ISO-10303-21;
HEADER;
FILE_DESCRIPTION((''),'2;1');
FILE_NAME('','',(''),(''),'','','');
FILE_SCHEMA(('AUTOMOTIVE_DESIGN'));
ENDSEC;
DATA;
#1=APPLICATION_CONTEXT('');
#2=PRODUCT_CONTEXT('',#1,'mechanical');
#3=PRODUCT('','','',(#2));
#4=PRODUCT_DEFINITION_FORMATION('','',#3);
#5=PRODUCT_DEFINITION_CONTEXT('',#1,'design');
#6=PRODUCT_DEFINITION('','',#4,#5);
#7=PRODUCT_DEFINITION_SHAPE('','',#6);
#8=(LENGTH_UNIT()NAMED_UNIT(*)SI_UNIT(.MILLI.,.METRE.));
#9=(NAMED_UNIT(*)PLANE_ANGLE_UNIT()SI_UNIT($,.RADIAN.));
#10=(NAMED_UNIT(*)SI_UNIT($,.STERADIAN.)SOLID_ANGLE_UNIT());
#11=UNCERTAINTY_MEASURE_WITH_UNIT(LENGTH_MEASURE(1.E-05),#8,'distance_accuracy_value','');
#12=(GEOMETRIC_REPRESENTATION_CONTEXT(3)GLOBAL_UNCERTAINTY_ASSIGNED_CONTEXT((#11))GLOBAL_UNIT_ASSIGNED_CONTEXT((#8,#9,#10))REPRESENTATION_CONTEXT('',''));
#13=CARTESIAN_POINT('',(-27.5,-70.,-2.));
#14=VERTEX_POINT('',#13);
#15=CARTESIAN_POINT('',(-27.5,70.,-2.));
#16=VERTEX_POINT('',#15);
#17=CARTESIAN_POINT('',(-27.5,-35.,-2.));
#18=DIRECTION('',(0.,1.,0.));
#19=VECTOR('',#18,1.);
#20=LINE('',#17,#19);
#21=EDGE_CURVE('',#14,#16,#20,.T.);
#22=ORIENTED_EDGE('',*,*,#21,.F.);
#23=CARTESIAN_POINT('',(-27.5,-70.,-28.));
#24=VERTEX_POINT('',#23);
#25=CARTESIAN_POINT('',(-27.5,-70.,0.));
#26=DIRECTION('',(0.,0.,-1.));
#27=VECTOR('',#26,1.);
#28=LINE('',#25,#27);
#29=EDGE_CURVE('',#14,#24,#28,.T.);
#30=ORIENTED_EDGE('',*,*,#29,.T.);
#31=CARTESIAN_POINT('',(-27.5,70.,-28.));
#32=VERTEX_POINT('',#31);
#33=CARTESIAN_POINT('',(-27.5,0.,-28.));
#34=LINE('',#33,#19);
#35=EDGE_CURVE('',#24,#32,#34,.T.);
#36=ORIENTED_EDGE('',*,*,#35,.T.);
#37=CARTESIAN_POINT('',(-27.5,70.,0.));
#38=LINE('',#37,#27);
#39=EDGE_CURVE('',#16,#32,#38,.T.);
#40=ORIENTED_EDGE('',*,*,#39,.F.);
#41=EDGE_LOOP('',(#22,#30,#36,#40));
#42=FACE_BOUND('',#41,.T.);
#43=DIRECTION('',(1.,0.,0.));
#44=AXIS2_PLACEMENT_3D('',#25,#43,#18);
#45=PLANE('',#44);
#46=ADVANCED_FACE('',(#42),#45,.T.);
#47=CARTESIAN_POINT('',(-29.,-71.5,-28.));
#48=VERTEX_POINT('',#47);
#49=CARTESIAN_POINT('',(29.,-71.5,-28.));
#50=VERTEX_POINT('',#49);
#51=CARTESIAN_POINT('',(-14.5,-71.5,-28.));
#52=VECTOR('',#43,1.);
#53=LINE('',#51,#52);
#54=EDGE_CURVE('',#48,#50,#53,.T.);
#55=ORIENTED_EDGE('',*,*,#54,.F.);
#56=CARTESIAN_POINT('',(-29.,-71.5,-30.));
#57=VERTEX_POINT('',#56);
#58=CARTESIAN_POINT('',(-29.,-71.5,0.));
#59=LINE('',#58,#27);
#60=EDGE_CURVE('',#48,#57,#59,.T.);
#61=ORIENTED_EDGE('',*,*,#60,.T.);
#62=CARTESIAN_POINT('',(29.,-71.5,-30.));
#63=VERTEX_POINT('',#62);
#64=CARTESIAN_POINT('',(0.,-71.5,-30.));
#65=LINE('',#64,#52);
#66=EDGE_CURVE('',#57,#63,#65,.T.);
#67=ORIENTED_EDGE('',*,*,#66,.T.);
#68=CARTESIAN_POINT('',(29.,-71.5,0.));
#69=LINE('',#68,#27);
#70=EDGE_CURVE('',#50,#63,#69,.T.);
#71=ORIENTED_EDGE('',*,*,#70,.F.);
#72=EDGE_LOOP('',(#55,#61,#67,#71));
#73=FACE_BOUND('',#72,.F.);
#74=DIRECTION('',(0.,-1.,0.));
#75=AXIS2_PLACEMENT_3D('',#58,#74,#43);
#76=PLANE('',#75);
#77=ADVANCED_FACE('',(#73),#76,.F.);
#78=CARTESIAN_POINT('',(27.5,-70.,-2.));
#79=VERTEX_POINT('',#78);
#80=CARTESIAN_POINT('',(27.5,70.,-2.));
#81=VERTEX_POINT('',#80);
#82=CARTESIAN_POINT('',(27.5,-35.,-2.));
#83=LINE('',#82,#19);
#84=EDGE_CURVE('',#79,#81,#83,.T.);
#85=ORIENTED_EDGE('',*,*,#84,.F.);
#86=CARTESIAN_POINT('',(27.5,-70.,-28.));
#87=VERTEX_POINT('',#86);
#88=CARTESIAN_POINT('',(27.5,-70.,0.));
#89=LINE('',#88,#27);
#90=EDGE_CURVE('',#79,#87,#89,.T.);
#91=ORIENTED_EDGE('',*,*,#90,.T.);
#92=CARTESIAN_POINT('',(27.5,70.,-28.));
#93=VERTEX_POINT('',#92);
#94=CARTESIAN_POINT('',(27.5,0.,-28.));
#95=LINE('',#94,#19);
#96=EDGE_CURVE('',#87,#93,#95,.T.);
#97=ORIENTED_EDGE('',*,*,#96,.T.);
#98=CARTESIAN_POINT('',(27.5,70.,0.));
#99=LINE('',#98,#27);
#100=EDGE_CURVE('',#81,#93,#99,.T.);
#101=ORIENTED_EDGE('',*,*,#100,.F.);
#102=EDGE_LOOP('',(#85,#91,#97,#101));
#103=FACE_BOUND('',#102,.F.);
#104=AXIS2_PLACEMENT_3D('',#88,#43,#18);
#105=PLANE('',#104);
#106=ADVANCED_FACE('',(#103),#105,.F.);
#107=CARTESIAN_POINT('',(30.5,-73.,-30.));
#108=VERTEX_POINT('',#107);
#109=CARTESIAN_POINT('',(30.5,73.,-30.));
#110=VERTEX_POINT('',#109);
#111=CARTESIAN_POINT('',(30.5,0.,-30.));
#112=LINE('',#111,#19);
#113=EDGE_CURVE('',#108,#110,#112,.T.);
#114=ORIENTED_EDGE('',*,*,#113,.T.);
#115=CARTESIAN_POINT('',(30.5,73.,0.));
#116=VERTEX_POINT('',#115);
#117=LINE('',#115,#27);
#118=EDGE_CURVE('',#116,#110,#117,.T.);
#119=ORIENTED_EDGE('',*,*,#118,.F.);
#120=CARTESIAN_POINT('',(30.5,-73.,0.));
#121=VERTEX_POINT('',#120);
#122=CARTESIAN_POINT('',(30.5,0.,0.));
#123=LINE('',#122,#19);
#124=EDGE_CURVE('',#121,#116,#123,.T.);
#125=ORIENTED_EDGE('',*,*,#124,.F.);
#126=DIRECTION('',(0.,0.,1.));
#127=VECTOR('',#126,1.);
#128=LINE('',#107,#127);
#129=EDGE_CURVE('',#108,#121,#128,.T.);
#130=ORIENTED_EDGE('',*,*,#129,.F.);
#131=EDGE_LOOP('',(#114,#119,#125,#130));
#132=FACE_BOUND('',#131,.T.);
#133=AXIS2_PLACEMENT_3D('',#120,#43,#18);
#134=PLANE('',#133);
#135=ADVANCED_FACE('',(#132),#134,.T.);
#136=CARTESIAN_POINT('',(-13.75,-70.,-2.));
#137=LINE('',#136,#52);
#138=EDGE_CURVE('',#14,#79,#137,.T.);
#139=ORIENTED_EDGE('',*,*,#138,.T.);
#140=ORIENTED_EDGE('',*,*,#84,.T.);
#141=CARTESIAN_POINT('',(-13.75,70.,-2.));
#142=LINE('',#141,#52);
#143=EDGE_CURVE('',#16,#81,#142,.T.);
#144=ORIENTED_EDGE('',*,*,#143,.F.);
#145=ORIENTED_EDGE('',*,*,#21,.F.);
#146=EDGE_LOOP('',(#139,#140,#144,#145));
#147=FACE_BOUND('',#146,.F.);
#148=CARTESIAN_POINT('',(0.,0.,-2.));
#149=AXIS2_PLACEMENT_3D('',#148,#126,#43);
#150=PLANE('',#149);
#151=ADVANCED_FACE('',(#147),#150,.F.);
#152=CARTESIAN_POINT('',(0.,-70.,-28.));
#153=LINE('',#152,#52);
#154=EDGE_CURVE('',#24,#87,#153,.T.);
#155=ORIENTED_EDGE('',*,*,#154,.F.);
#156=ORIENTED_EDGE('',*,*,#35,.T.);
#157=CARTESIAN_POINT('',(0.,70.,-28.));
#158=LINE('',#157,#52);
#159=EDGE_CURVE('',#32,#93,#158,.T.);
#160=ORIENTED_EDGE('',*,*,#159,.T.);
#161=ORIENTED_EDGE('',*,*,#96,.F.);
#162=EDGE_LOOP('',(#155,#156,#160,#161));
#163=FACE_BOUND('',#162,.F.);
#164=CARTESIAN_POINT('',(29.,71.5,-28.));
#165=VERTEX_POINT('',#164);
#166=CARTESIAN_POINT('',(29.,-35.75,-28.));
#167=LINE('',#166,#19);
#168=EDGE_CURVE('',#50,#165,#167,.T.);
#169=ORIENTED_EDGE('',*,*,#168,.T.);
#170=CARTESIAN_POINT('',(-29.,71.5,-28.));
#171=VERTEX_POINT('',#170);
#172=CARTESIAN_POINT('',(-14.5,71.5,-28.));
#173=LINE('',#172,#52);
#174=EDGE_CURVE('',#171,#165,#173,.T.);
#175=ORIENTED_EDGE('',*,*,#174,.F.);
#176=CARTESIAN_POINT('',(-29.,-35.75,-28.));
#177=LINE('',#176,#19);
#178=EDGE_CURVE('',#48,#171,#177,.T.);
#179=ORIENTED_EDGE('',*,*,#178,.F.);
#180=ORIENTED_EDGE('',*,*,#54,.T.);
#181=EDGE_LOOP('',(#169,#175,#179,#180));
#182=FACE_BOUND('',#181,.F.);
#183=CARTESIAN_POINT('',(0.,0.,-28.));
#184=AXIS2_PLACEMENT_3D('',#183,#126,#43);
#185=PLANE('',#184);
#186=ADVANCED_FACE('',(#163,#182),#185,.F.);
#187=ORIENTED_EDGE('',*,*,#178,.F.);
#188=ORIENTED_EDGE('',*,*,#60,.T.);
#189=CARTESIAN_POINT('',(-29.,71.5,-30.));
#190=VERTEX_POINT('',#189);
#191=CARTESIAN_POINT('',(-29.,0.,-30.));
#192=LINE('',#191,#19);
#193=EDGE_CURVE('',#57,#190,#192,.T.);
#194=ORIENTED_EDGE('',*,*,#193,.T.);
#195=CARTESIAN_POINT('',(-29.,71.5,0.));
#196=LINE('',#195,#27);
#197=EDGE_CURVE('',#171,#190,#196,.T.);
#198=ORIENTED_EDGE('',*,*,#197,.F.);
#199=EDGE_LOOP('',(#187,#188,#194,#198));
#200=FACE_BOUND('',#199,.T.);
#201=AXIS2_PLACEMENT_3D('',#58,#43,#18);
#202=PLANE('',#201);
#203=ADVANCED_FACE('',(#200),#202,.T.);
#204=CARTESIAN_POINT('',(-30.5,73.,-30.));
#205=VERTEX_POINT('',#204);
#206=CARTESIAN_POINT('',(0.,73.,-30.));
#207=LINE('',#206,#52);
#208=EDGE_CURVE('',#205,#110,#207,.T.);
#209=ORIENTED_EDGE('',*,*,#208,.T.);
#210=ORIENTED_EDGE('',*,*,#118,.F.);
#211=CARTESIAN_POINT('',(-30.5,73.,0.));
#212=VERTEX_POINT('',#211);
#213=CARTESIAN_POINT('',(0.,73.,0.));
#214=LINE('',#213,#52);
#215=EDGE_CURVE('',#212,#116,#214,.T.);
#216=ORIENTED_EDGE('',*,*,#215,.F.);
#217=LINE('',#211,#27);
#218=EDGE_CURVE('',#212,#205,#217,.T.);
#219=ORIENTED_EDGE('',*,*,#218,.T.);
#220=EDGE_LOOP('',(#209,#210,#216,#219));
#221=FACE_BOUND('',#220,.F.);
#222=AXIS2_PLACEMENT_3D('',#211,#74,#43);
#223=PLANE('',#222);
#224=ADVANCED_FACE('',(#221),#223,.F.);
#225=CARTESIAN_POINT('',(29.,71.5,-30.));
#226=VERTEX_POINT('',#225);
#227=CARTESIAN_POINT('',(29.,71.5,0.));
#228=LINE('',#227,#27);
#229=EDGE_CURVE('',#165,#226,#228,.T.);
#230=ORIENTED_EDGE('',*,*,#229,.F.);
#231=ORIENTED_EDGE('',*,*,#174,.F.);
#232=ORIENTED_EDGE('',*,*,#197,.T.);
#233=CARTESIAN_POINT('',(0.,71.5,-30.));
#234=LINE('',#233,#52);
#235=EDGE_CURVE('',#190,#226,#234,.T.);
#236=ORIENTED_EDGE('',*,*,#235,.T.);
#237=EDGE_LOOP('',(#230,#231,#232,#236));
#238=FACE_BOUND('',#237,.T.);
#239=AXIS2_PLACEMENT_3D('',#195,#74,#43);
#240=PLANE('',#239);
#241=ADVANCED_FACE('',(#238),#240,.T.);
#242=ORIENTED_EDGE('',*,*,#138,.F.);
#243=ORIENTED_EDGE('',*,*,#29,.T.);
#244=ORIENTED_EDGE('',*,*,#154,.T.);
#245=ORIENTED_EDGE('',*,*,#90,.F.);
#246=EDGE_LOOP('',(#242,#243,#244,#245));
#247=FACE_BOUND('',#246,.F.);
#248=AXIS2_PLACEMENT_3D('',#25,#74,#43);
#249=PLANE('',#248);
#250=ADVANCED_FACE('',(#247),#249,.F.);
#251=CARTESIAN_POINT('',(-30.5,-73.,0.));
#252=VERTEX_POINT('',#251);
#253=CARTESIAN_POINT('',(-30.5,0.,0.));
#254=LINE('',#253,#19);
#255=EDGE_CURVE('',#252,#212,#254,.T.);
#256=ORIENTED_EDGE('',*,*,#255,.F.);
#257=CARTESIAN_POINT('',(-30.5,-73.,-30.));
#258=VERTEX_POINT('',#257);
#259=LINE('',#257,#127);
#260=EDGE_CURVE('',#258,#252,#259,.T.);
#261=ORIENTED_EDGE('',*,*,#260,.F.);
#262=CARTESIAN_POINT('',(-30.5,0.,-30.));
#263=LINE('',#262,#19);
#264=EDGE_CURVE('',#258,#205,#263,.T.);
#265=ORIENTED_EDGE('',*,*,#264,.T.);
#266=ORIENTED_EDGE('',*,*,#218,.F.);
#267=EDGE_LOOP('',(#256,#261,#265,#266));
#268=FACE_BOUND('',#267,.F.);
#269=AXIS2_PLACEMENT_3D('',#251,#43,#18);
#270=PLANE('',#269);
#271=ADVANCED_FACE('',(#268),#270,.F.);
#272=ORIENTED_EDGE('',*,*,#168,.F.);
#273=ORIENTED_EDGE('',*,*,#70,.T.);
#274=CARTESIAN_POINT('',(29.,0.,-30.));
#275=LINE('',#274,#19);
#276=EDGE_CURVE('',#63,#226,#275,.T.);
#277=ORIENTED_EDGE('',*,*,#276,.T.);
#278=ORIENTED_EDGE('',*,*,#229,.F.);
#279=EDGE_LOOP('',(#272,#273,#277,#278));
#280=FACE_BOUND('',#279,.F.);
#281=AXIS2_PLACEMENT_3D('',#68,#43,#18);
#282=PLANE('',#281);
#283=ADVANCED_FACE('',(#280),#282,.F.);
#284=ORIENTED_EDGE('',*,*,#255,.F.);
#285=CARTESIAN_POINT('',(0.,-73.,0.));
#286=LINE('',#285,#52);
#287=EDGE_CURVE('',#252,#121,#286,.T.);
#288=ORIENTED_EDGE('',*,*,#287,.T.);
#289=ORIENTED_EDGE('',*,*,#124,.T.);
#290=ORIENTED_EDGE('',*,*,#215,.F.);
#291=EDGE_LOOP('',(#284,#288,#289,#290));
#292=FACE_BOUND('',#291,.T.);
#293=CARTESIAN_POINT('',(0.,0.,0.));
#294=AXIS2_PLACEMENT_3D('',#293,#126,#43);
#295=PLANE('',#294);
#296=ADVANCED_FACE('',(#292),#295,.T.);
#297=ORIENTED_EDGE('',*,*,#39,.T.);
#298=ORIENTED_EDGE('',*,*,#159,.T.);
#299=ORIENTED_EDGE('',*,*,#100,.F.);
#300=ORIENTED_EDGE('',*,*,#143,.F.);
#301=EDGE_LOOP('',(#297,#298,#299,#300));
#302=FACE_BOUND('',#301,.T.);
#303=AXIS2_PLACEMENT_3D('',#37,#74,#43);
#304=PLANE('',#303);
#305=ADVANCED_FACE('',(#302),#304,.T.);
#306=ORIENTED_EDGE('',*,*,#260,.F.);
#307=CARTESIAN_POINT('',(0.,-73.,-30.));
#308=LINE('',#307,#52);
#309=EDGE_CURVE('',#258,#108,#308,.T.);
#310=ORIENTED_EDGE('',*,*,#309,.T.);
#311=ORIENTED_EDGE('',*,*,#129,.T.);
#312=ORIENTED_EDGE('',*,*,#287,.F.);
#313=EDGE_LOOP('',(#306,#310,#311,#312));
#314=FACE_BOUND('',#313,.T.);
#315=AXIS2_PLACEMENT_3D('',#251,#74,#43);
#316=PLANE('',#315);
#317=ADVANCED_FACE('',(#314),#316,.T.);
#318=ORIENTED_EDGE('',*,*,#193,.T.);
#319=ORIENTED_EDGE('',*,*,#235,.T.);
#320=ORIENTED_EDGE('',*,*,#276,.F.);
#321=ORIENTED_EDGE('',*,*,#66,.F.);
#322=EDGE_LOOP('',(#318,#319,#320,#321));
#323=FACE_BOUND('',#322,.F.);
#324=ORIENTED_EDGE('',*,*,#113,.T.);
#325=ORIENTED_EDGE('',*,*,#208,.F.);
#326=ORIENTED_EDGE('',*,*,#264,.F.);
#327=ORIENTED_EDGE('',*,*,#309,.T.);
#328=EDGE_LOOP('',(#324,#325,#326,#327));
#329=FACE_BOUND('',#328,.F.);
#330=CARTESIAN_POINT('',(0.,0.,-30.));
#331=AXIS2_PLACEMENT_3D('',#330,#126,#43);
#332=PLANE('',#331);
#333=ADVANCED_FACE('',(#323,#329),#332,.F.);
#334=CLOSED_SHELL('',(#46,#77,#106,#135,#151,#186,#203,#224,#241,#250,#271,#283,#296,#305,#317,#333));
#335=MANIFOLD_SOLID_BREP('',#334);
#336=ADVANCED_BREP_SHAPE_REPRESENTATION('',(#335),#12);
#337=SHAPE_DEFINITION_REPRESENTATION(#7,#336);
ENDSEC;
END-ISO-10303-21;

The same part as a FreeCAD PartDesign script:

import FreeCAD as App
import Part
import Sketcher
Q = App.Units.Quantity


def add_polygon(sketch, points):
    """Adds a closed chain of lines whose ends are joined by coincident constraints."""
    first, n = sketch.GeometryCount, len(points)
    for a, b in zip(points, points[1:] + points[:1]):
        sketch.addGeometry(Part.LineSegment(App.Vector(*a, 0), App.Vector(*b, 0)), False)
    for i in range(n):
        sketch.addConstraint(Sketcher.Constraint("Coincident", first + i, 2, first + (i + 1) % n, 1))

doc = App.newDocument("Part")
params = doc.addObject("Spreadsheet::Sheet", "Params")
for row, (alias, value) in enumerate([
    ("sketch1_width", "61 mm"),
    ("sketch1_height", "146 mm"),
    ("pad1_length", "2 mm"),
    ("sketch2_width", "61 mm"),
    ("sketch2_width2", "55 mm"),
    ("sketch2_height", "146 mm"),
    ("sketch2_height2", "140 mm"),
    ("pad2_length", "28 mm"),
    ("sketch3_width", "61 mm"),
    ("sketch3_width2", "58 mm"),
    ("sketch3_height", "146 mm"),
    ("sketch3_height2", "143 mm"),
    ("pad3_length", "30 mm"),
], start=1):
    params.set(f"A{row}", alias)
    params.set(f"B{row}", "=" + value)
    params.setAlias(f"B{row}", alias)

body = doc.addObject("PartDesign::Body", "Body")

# Sketch on XY plane
sketch1 = body.newObject("Sketcher::SketchObject", "Sketch")
sketch1.AttachmentSupport = (doc.getObject("XY_Plane"), [""])
sketch1.MapMode = "FlatFace"
add_polygon(sketch1, [(-30, 73), (-30, -73), (30, -73), (30, 73)])  # lines 0-3
sketch1.addConstraint(Sketcher.Constraint("Vertical", 0))
sketch1.addConstraint(Sketcher.Constraint("Horizontal", 1))
sketch1.addConstraint(Sketcher.Constraint("Vertical", 2))
sketch1.addConstraint(Sketcher.Constraint("Horizontal", 3))
sketch1.addConstraint(Sketcher.Constraint("Symmetric", 0, 2, 2, 2, -1, 1))
sketch1.addConstraint(Sketcher.Constraint("DistanceX", 1, 1, 1, 2, Q("61 mm")))
sketch1.addConstraint(Sketcher.Constraint("DistanceY", 0, 2, 0, 1, Q("146 mm")))
sketch1.setExpression("Constraints[9]", "Params.sketch1_width")
sketch1.setExpression("Constraints[10]", "Params.sketch1_height")
pad1 = body.newObject("PartDesign::Pad", "Pad")
pad1.Profile = sketch1
pad1.setExpression("Length", "Params.pad1_length")
pad1.Reversed = True

# Sketch on XY plane
sketch2 = body.newObject("Sketcher::SketchObject", "Sketch001")
sketch2.AttachmentSupport = (doc.getObject("XY_Plane"), [""])
sketch2.MapMode = "FlatFace"
add_polygon(sketch2, [(-30, 73), (-30, -73), (30, -73), (30, 73)])  # lines 0-3
add_polygon(sketch2, [(28, -70), (-28, -70), (-28, 70), (28, 70)])  # lines 4-7
sketch2.addConstraint(Sketcher.Constraint("Vertical", 0))
sketch2.addConstraint(Sketcher.Constraint("Horizontal", 1))
sketch2.addConstraint(Sketcher.Constraint("Vertical", 2))
sketch2.addConstraint(Sketcher.Constraint("Horizontal", 3))
sketch2.addConstraint(Sketcher.Constraint("Horizontal", 4))
sketch2.addConstraint(Sketcher.Constraint("Vertical", 5))
sketch2.addConstraint(Sketcher.Constraint("Horizontal", 6))
sketch2.addConstraint(Sketcher.Constraint("Vertical", 7))
sketch2.addConstraint(Sketcher.Constraint("Symmetric", 0, 2, 2, 2, -1, 1))
sketch2.addConstraint(Sketcher.Constraint("Symmetric", 4, 2, 6, 2, -1, 1))
sketch2.addConstraint(Sketcher.Constraint("DistanceX", 1, 1, 1, 2, Q("61 mm")))
sketch2.addConstraint(Sketcher.Constraint("DistanceX", 4, 2, 4, 1, Q("55 mm")))
sketch2.addConstraint(Sketcher.Constraint("DistanceY", 0, 2, 0, 1, Q("146 mm")))
sketch2.addConstraint(Sketcher.Constraint("DistanceY", 5, 1, 5, 2, Q("140 mm")))
sketch2.setExpression("Constraints[18]", "Params.sketch2_width")
sketch2.setExpression("Constraints[19]", "Params.sketch2_width2")
sketch2.setExpression("Constraints[20]", "Params.sketch2_height")
sketch2.setExpression("Constraints[21]", "Params.sketch2_height2")
pad2 = body.newObject("PartDesign::Pad", "Pad001")
pad2.Profile = sketch2
pad2.setExpression("Length", "Params.pad2_length")
pad2.Reversed = True

# Sketch on XY plane
sketch3 = body.newObject("Sketcher::SketchObject", "Sketch002")
sketch3.AttachmentSupport = (doc.getObject("XY_Plane"), [""])
sketch3.MapMode = "FlatFace"
add_polygon(sketch3, [(-30, 73), (-30, -73), (30, -73), (30, 73)])  # lines 0-3
add_polygon(sketch3, [(29, -72), (-29, -72), (-29, 72), (29, 72)])  # lines 4-7
sketch3.addConstraint(Sketcher.Constraint("Vertical", 0))
sketch3.addConstraint(Sketcher.Constraint("Horizontal", 1))
sketch3.addConstraint(Sketcher.Constraint("Vertical", 2))
sketch3.addConstraint(Sketcher.Constraint("Horizontal", 3))
sketch3.addConstraint(Sketcher.Constraint("Horizontal", 4))
sketch3.addConstraint(Sketcher.Constraint("Vertical", 5))
sketch3.addConstraint(Sketcher.Constraint("Horizontal", 6))
sketch3.addConstraint(Sketcher.Constraint("Vertical", 7))
sketch3.addConstraint(Sketcher.Constraint("Symmetric", 0, 2, 2, 2, -1, 1))
sketch3.addConstraint(Sketcher.Constraint("Symmetric", 4, 2, 6, 2, -1, 1))
sketch3.addConstraint(Sketcher.Constraint("DistanceX", 1, 1, 1, 2, Q("61 mm")))
sketch3.addConstraint(Sketcher.Constraint("DistanceX", 4, 2, 4, 1, Q("58 mm")))
sketch3.addConstraint(Sketcher.Constraint("DistanceY", 0, 2, 0, 1, Q("146 mm")))
sketch3.addConstraint(Sketcher.Constraint("DistanceY", 5, 1, 5, 2, Q("143 mm")))
sketch3.setExpression("Constraints[18]", "Params.sketch3_width")
sketch3.setExpression("Constraints[19]", "Params.sketch3_width2")
sketch3.setExpression("Constraints[20]", "Params.sketch3_height")
sketch3.setExpression("Constraints[21]", "Params.sketch3_height2")
pad3 = body.newObject("PartDesign::Pad", "Pad002")
pad3.Profile = sketch3
pad3.setExpression("Length", "Params.pad3_length")
pad3.Reversed = True

doc.recompute()
